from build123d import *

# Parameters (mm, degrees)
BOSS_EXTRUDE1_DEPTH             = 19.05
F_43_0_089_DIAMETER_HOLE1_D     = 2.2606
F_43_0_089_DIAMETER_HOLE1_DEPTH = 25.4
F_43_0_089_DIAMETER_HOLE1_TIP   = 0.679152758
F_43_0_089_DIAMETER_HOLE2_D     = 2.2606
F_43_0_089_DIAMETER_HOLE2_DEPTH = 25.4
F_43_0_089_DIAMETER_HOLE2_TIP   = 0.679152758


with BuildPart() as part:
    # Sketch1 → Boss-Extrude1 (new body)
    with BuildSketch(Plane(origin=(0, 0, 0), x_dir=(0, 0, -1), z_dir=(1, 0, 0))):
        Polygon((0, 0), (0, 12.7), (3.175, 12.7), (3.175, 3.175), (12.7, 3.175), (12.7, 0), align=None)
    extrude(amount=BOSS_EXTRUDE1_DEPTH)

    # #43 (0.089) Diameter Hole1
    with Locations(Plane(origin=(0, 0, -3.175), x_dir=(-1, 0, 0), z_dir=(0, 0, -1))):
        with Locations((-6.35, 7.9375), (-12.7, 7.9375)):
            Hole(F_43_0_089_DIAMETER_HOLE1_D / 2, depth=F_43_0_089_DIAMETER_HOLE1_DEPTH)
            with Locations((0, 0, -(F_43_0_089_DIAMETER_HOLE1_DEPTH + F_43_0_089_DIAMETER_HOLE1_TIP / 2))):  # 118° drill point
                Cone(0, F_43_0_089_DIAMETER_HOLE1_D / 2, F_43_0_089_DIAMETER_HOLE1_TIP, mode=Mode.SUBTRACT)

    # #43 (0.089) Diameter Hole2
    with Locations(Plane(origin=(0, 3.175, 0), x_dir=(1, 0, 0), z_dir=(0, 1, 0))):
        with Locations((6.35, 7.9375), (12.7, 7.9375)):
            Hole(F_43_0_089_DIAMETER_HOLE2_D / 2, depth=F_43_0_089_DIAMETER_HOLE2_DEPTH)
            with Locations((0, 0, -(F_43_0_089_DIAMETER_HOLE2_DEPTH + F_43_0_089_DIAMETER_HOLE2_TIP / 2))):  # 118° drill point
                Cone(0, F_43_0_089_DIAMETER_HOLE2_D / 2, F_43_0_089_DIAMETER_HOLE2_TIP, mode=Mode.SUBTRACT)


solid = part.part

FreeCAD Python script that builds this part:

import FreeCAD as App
import Part
import Sketcher
from FreeCAD import Vector
Q = App.Units.Quantity


def add_polygon(sketch, points):
    """Adds a closed chain of lines whose ends are joined by coincident constraints."""
    first, n = sketch.GeometryCount, len(points)
    for a, b in zip(points, points[1:] + points[:1]):
        sketch.addGeometry(Part.LineSegment(App.Vector(*a, 0), App.Vector(*b, 0)), False)
    for i in range(n):
        sketch.addConstraint(Sketcher.Constraint("Coincident", first + i, 2, first + (i + 1) % n, 1))

doc = App.newDocument("Part")
params = doc.addObject("Spreadsheet::Sheet", "Params")
for row, (alias, value) in enumerate([
    ("sketch1_width", "0.5 in"),
    ("sketch1_width2", "0.125 in"),
    ("pad1_length", "0.75 in"),
    ("sketch2_diameter", "0.089 in"),
    ("hole_diameter", "0.089 in"),
    ("hole_depth", "1 in"),
    ("sketch3_diameter", "0.089 in"),
    ("hole2_diameter", "0.089 in"),
    ("hole2_depth", "1 in"),
], start=1):
    params.set(f"A{row}", alias)
    params.set(f"B{row}", "=" + value)
    params.setAlias(f"B{row}", alias)

body = doc.addObject("PartDesign::Body", "Body")

# Sketch on YZ plane
sketch1 = body.newObject("Sketcher::SketchObject", "Sketch")
sketch1.AttachmentSupport = (doc.getObject("YZ_Plane"), [""])
sketch1.MapMode = "FlatFace"
add_polygon(sketch1, [(12.7, 0), (0, 0), (0, -12.7), (3.2, -12.7), (3.2, -3.2), (12.7, -3.2)])  # lines 0-5
sketch1.addConstraint([
    Sketcher.Constraint("Horizontal", 0),
    Sketcher.Constraint("Vertical", 1),
    Sketcher.Constraint("Horizontal", 2),
    Sketcher.Constraint("Vertical", 3),
    Sketcher.Constraint("Horizontal", 4),
    Sketcher.Constraint("Vertical", 5),
    Sketcher.Constraint("Coincident", 0, 2, -1, 1),
    Sketcher.Constraint("Equal", 0, 1),
    Sketcher.Constraint("Equal", 4, 3),
    Sketcher.Constraint("DistanceX", 0, 2, 0, 1, Q("0.5 in")),
    Sketcher.Constraint("DistanceX", 2, 1, 2, 2, Q("0.125 in")),
])
sketch1.setExpression("Constraints[15]", "Params.sketch1_width")
sketch1.setExpression("Constraints[16]", "Params.sketch1_width2")
pad1 = body.newObject("PartDesign::Pad", "Pad")
pad1.Profile = sketch1
pad1.setExpression("Length", "Params.pad1_length")

# Sketch on XY plane
sketch2 = body.newObject("Sketcher::SketchObject", "Sketch001")
sketch2.AttachmentSupport = (doc.getObject("XY_Plane"), [""])
sketch2.MapMode = "FlatFace"
sketch2.AttachmentOffset = App.Placement(Vector(0, 0, -0.125 * 25.4), App.Rotation())
sketch2.addGeometry([
    Part.Circle(Vector(6.3, 7.9, 0), Vector(0, 0, 1), 1.1),
    Part.Circle(Vector(12.7, 7.9, 0), Vector(0, 0, 1), 1.1),
], False)
sketch2.addConstraint([
    Sketcher.Constraint("Equal", 0, 1),
    Sketcher.Constraint("Horizontal", 0, 3, 1, 3),
    Sketcher.Constraint("Diameter", 0, Q("0.089 in")),
    Sketcher.Constraint("DistanceX", -1, 1, 1, 3, Q("0.5 in")),
    Sketcher.Constraint("DistanceX", -1, 1, 0, 3, Q("0.25 in")),
    Sketcher.Constraint("DistanceY", -1, 1, 0, 3, Q("0.3125 in")),
])
sketch2.setExpression("Constraints[2]", "Params.sketch2_diameter")
doc.recompute()
hole = body.newObject("PartDesign::Hole", "Hole")
hole.Profile = sketch2
hole.ThreadType = "None"
hole.setExpression("Diameter", "Params.hole_diameter")
hole.DepthType = "Dimension"
hole.setExpression("Depth", "Params.hole_depth")
hole.DrillPoint = "Angled"
hole.DrillPointAngle = 118
hole.Reversed = True

# Sketch on XZ plane
sketch3 = body.newObject("Sketcher::SketchObject", "Sketch002")
sketch3.AttachmentSupport = (doc.getObject("XZ_Plane"), [""])
sketch3.MapMode = "FlatFace"
sketch3.AttachmentOffset = App.Placement(Vector(0, 0, -0.125 * 25.4), App.Rotation())
sketch3.addGeometry([
    Part.Circle(Vector(6.3, -7.9, 0), Vector(0, 0, 1), 1.1),
    Part.Circle(Vector(12.7, -7.9, 0), Vector(0, 0, 1), 1.1),
], False)
sketch3.addConstraint([
    Sketcher.Constraint("Equal", 0, 1),
    Sketcher.Constraint("Horizontal", 0, 3, 1, 3),
    Sketcher.Constraint("Diameter", 0, Q("0.089 in")),
    Sketcher.Constraint("DistanceX", -1, 1, 1, 3, Q("0.5 in")),
    Sketcher.Constraint("DistanceX", -1, 1, 0, 3, Q("0.25 in")),
    Sketcher.Constraint("DistanceY", 0, 3, -1, 1, Q("0.3125 in")),
])
sketch3.setExpression("Constraints[2]", "Params.sketch3_diameter")
doc.recompute()
hole2 = body.newObject("PartDesign::Hole", "Hole001")
hole2.Profile = sketch3
hole2.ThreadType = "None"
hole2.setExpression("Diameter", "Params.hole2_diameter")
hole2.DepthType = "Dimension"
hole2.setExpression("Depth", "Params.hole2_depth")
hole2.DrillPoint = "Angled"
hole2.DrillPointAngle = 118
hole2.Reversed = True

doc.recompute()
